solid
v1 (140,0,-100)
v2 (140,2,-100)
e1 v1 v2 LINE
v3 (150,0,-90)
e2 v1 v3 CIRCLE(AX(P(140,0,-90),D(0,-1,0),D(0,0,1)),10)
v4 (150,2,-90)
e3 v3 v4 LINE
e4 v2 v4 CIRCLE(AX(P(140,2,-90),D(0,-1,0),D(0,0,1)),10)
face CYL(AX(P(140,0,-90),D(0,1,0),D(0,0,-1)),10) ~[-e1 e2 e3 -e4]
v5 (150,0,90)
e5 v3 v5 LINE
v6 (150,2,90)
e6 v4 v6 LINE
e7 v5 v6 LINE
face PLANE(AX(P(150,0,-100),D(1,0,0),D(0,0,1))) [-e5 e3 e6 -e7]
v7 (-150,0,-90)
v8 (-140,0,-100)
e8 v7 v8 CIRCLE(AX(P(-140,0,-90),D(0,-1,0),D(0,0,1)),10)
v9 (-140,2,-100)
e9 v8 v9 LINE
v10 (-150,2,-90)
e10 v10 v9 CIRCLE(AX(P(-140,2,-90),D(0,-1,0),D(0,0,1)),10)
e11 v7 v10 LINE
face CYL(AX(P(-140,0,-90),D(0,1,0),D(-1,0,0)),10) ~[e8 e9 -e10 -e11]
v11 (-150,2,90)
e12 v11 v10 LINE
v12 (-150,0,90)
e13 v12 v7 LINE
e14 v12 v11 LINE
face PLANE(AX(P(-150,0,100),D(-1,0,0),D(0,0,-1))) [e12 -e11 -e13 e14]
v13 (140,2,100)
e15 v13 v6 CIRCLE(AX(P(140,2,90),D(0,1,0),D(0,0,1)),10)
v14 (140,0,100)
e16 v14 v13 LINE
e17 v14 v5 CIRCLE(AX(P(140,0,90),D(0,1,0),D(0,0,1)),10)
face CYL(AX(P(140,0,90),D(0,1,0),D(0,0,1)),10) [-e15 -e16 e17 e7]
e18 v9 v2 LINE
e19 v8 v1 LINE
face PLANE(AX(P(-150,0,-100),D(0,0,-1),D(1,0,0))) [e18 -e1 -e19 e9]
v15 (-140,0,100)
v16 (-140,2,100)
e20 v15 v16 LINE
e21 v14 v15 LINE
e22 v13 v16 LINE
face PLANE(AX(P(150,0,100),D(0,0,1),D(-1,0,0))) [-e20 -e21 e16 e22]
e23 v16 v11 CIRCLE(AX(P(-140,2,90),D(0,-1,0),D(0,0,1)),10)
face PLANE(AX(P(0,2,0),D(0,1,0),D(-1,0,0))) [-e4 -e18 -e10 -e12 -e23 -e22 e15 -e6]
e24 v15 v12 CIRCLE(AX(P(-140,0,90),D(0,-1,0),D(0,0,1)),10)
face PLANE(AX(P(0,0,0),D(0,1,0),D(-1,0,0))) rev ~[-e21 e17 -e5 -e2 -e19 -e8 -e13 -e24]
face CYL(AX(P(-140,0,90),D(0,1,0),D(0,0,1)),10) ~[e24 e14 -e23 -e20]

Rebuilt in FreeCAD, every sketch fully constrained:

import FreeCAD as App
import Part
import Sketcher
from FreeCAD import Vector
Q = App.Units.Quantity


def edges_at(feature, points):
    """Names of the edges that pass closest to the given points."""
    edges = feature.Shape.Edges
    near = lambda p: min(range(len(edges)), key=lambda i: edges[i].distToShape(Part.Vertex(*p))[0])
    return sorted({f"Edge{near(p) + 1}" for p in points})


def add_polygon(sketch, points):
    """Adds a closed chain of lines whose ends are joined by coincident constraints."""
    first, n = sketch.GeometryCount, len(points)
    for a, b in zip(points, points[1:] + points[:1]):
        sketch.addGeometry(Part.LineSegment(App.Vector(*a, 0), App.Vector(*b, 0)), False)
    for i in range(n):
        sketch.addConstraint(Sketcher.Constraint("Coincident", first + i, 2, first + (i + 1) % n, 1))

doc = App.newDocument("Part")
params = doc.addObject("Spreadsheet::Sheet", "Params")
for row, (alias, value) in enumerate([
    ("sketch1_width", "300 mm"),
    ("sketch1_height", "200 mm"),
    ("pad1_length", "2 mm"),
    ("fillet_radius", "10 mm"),
], start=1):
    params.set(f"A{row}", alias)
    params.set(f"B{row}", "=" + value)
    params.setAlias(f"B{row}", alias)

body = doc.addObject("PartDesign::Body", "Body")

# Sketch on XZ plane
sketch1 = body.newObject("Sketcher::SketchObject", "Sketch")
sketch1.AttachmentSupport = (doc.getObject("XZ_Plane"), [""])
sketch1.MapMode = "FlatFace"
add_polygon(sketch1, [(-150, 100), (150, 100), (150, -100), (-150, -100)])  # lines 0-3
sketch1.addConstraint([
    Sketcher.Constraint("Horizontal", 0),
    Sketcher.Constraint("Vertical", 1),
    Sketcher.Constraint("Horizontal", 2),
    Sketcher.Constraint("Vertical", 3),
    Sketcher.Constraint("Symmetric", 0, 2, 2, 2, -1, 1),
    Sketcher.Constraint("DistanceX", 0, 1, 0, 2, Q("300 mm")),
    Sketcher.Constraint("DistanceY", 1, 2, 1, 1, Q("200 mm")),
])
sketch1.setExpression("Constraints[9]", "Params.sketch1_width")
sketch1.setExpression("Constraints[10]", "Params.sketch1_height")
pad1 = body.newObject("PartDesign::Pad", "Pad")
pad1.Profile = sketch1
pad1.setExpression("Length", "Params.pad1_length")
pad1.Reversed = True
doc.recompute()

fillet = body.newObject("PartDesign::Fillet", "Fillet")
fillet.Base = (pad1, edges_at(pad1, [
    (150, 1, 100),
    (150, 1, -100),
    (-150, 1, -100),
    (-150, 1, 100),
]))
fillet.setExpression("Radius", "Params.fillet_radius")

doc.recompute()
